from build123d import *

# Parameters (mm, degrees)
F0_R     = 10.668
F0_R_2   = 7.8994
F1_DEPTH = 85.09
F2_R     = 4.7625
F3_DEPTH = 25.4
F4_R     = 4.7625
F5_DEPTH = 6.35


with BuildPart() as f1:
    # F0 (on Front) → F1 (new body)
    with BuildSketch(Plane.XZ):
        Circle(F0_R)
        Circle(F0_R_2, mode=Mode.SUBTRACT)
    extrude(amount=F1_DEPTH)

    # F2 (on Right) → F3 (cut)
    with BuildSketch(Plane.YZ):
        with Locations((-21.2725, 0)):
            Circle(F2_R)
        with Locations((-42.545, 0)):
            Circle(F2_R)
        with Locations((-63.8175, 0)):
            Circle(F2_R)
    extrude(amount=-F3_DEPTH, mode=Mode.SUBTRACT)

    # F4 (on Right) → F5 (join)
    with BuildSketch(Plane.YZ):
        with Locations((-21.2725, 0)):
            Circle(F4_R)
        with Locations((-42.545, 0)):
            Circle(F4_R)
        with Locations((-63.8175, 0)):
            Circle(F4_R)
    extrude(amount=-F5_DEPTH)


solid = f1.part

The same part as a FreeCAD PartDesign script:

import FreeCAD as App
import Part
import Sketcher

V = App.Vector
Q = App.Units.Quantity

doc = App.newDocument("Part")
params = doc.addObject("Spreadsheet::Sheet", "Params")
for row, (alias, value) in enumerate([
    ("sketch1_diameter", "0.84 in"),
    ("sketch1_diameter2", "0.622 in"),
    ("pad1_length", "3.35 in"),
    ("sketch2_diameter", "0.375 in"),
    ("pocket1_length", "1 in"),
    ("sketch3_diameter", "0.375 in"),
    ("pad2_length", "0.25 in"),
], start=1):
    params.set(f"A{row}", alias)
    params.set(f"B{row}", "=" + value)
    params.setAlias(f"B{row}", alias)

body = doc.addObject("PartDesign::Body", "Body")

# Sketch on XZ plane
sketch1 = body.newObject("Sketcher::SketchObject", "Sketch")
sketch1.AttachmentSupport = (doc.getObject("XZ_Plane"), [""])
sketch1.MapMode = "FlatFace"
sketch1.addGeometry([
    Part.Circle(V(0, 0, 0), V(0, 0, 1), 11),
    Part.Circle(V(0, 0, 0), V(0, 0, 1), 8),
], False)
sketch1.addConstraint([
    Sketcher.Constraint("Coincident", 0, 3, -1, 1),
    Sketcher.Constraint("Coincident", 1, 3, -1, 1),
    Sketcher.Constraint("Diameter", 0, Q("0.84 in")),
    Sketcher.Constraint("Diameter", 1, Q("0.622 in")),
])
sketch1.setExpression("Constraints[2]", "Params.sketch1_diameter")
sketch1.setExpression("Constraints[3]", "Params.sketch1_diameter2")
pad1 = body.newObject("PartDesign::Pad", "Pad")
pad1.Profile = sketch1
pad1.setExpression("Length", "Params.pad1_length")

# Sketch on YZ plane
sketch2 = body.newObject("Sketcher::SketchObject", "Sketch001")
sketch2.AttachmentSupport = (doc.getObject("YZ_Plane"), [""])
sketch2.MapMode = "FlatFace"
sketch2.addGeometry([
    Part.Circle(V(-21.3, 0, 0), V(0, 0, 1), 4.8),
    Part.Circle(V(-42.5, 0, 0), V(0, 0, 1), 4.8),
    Part.Circle(V(-63.8, 0, 0), V(0, 0, 1), 4.8),
], False)
sketch2.addConstraint([
    Sketcher.Constraint("Equal", 0, 1),
    Sketcher.Constraint("Equal", 1, 2),
    Sketcher.Constraint("PointOnObject", 0, 3, -1),
    Sketcher.Constraint("PointOnObject", 1, 3, -1),
    Sketcher.Constraint("PointOnObject", 2, 3, -1),
    Sketcher.Constraint("Diameter", 0, Q("0.375 in")),
    Sketcher.Constraint("DistanceX", 1, 3, -1, 1, Q("1.675 in")),
    Sketcher.Constraint("DistanceX", 2, 3, 0, 3, Q("1.675 in")),
    Sketcher.Constraint("DistanceX", 0, 3, -1, 1, Q("0.8375 in")),
])
sketch2.setExpression("Constraints[5]", "Params.sketch2_diameter")
pocket1 = body.newObject("PartDesign::Pocket", "Pocket")
pocket1.Profile = sketch2
pocket1.setExpression("Length", "Params.pocket1_length")

# Sketch on YZ plane
sketch3 = body.newObject("Sketcher::SketchObject", "Sketch002")
sketch3.AttachmentSupport = (doc.getObject("YZ_Plane"), [""])
sketch3.MapMode = "FlatFace"
sketch3.addGeometry([
    Part.Circle(V(-21.3, 0, 0), V(0, 0, 1), 4.8),
    Part.Circle(V(-42.5, 0, 0), V(0, 0, 1), 4.8),
    Part.Circle(V(-63.8, 0, 0), V(0, 0, 1), 4.8),
], False)
sketch3.addConstraint([
    Sketcher.Constraint("Equal", 0, 1),
    Sketcher.Constraint("Equal", 1, 2),
    Sketcher.Constraint("PointOnObject", 0, 3, -1),
    Sketcher.Constraint("PointOnObject", 1, 3, -1),
    Sketcher.Constraint("PointOnObject", 2, 3, -1),
    Sketcher.Constraint("Diameter", 0, Q("0.375 in")),
    Sketcher.Constraint("DistanceX", 1, 3, -1, 1, Q("1.675 in")),
    Sketcher.Constraint("DistanceX", 2, 3, 0, 3, Q("1.675 in")),
    Sketcher.Constraint("DistanceX", 0, 3, -1, 1, Q("0.8375 in")),
])
sketch3.setExpression("Constraints[5]", "Params.sketch3_diameter")
pad2 = body.newObject("PartDesign::Pad", "Pad001")
pad2.Profile = sketch3
pad2.setExpression("Length", "Params.pad2_length")
pad2.Reversed = True

doc.recompute()
